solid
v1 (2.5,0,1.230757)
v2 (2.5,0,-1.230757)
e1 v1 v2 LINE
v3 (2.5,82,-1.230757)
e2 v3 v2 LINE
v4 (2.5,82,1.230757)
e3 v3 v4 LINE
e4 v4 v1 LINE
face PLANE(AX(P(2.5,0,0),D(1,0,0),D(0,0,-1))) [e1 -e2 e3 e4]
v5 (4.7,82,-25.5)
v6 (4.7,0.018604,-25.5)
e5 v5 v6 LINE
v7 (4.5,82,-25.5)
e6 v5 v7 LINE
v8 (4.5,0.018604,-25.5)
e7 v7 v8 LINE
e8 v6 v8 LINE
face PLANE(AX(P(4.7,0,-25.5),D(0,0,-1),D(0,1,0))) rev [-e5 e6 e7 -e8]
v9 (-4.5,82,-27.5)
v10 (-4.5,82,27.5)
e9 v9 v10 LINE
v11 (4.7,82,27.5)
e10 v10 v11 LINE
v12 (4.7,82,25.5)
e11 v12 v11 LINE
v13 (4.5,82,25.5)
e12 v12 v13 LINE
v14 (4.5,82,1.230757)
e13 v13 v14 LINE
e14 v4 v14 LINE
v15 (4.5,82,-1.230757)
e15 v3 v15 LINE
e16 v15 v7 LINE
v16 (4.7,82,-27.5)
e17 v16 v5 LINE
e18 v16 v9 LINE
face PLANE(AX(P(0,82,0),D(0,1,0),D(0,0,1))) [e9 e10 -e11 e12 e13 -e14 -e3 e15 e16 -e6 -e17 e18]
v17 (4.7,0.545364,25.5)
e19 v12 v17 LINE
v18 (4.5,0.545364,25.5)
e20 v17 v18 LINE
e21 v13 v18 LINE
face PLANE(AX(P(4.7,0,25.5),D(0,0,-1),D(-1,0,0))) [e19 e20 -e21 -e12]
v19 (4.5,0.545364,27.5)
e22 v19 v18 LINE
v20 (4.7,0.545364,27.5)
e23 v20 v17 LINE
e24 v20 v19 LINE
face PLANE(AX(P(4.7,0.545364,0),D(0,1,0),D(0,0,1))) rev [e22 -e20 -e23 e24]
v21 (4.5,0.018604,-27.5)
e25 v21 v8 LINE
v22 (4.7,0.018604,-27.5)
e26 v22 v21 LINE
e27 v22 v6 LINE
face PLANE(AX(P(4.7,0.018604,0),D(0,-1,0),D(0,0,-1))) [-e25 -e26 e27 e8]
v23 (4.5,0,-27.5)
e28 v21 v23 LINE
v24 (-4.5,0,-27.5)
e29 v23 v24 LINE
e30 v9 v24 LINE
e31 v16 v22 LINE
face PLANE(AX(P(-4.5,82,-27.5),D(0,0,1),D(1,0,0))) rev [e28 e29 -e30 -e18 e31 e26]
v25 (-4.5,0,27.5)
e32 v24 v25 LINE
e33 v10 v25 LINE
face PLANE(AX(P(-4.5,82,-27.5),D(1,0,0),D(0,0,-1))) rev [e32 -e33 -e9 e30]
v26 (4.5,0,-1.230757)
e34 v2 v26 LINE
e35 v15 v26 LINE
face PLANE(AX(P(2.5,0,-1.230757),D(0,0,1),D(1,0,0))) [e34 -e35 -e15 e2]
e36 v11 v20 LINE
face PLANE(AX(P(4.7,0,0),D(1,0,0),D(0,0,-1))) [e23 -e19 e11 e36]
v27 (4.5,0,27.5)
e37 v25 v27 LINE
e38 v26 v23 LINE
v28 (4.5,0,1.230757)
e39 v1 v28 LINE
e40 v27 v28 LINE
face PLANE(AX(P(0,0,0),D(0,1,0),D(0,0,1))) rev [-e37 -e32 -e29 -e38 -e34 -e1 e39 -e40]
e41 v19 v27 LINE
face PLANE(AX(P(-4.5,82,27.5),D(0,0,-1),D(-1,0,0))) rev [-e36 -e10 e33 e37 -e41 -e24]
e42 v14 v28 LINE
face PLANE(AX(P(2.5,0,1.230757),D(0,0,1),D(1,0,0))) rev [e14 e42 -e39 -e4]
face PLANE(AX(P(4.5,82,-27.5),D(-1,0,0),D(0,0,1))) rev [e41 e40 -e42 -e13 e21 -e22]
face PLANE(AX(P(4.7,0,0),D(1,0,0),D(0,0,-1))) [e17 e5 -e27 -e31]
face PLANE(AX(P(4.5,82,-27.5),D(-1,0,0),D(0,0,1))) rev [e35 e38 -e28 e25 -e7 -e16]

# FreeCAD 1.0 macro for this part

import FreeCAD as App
import Part
import Sketcher

V = App.Vector
Q = App.Units.Quantity


def add_polygon(sketch, points):
    """Adds a closed chain of lines whose ends are joined by coincident constraints."""
    first, n = sketch.GeometryCount, len(points)
    for a, b in zip(points, points[1:] + points[:1]):
        sketch.addGeometry(Part.LineSegment(App.Vector(*a, 0), App.Vector(*b, 0)), False)
    for i in range(n):
        sketch.addConstraint(Sketcher.Constraint("Coincident", first + i, 2, first + (i + 1) % n, 1))

doc = App.newDocument("Part")
body = doc.addObject("PartDesign::Body", "Body")

sketch1 = body.newObject("Sketcher::SketchObject", "Sketch")
sketch1.AttachmentSupport = (doc.getObject("XZ_Plane"), [""])
sketch1.MapMode = "FlatFace"
add_polygon(sketch1, [(-4, -28), (-4, 28), (4, 28), (4, -28)])
sketch1.addConstraint([
    Sketcher.Constraint("Vertical", 0),
    Sketcher.Constraint("Horizontal", 1),
    Sketcher.Constraint("Vertical", 2),
    Sketcher.Constraint("Horizontal", 3),
    Sketcher.Constraint("Symmetric", 0, 2, 2, 2, -1, 1),
    Sketcher.Constraint("DistanceX", 1, 1, 1, 2, Q("9 mm")),
    Sketcher.Constraint("DistanceY", 0, 1, 0, 2, Q("55 mm")),
])
pad1 = body.newObject("PartDesign::Pad", "Pad")
pad1.Profile = sketch1
pad1.Length = 82
pad1.Reversed = True

sketch2 = body.newObject("Sketcher::SketchObject", "Sketch001")
sketch2.AttachmentSupport = (doc.getObject("YZ_Plane"), [""])
sketch2.MapMode = "FlatFace"
sketch2.AttachmentOffset = App.Placement(V(0, 0, 4.5), App.Rotation())
add_polygon(sketch2, [(82, 1.2), (0, 1.2), (0, -1.2), (82, -1.2)])
sketch2.addConstraint([
    Sketcher.Constraint("Horizontal", 0),
    Sketcher.Constraint("Vertical", 1),
    Sketcher.Constraint("Horizontal", 2),
    Sketcher.Constraint("Vertical", 3),
    Sketcher.Constraint("Symmetric", 0, 2, 1, 2, -1, 1),
    Sketcher.Constraint("DistanceX", 0, 2, 0, 1, Q("82 mm")),
    Sketcher.Constraint("DistanceY", 1, 2, 1, 1, Q("2.461514 mm")),
])
pocket1 = body.newObject("PartDesign::Pocket", "Pocket")
pocket1.Profile = sketch2
pocket1.Length = 2

sketch3 = body.newObject("Sketcher::SketchObject", "Sketch002")
sketch3.AttachmentSupport = (doc.getObject("YZ_Plane"), [""])
sketch3.MapMode = "FlatFace"
sketch3.AttachmentOffset = App.Placement(V(0, 0, 4.5), App.Rotation())
add_polygon(sketch3, [(82, 27.5), (0.5, 27.5), (0.5, 25.5), (82, 25.5)])
add_polygon(sketch3, [(82, -25.5), (0, -25.5), (0, -27.5), (82, -27.5)])
sketch3.addConstraint([
    Sketcher.Constraint("Horizontal", 0),
    Sketcher.Constraint("Vertical", 1),
    Sketcher.Constraint("Horizontal", 2),
    Sketcher.Constraint("Vertical", 3),
    Sketcher.Constraint("Horizontal", 4),
    Sketcher.Constraint("Vertical", 5),
    Sketcher.Constraint("Horizontal", 6),
    Sketcher.Constraint("Vertical", 7),
    Sketcher.Constraint("Symmetric", 3, 2, 6, 2, -1),
    Sketcher.Constraint("Equal", 3, 5),
    Sketcher.Constraint("DistanceY", 1, 2, 1, 1, Q("2 mm")),
    Sketcher.Constraint("DistanceX", -1, 1, 2, 2, Q("82 mm")),
    Sketcher.Constraint("DistanceY", 4, 2, 1, 2, Q("51 mm")),
    Sketcher.Constraint("DistanceX", 0, 2, 0, 1, Q("81.454636 mm")),
    Sketcher.Constraint("DistanceX", 4, 2, 4, 1, Q("81.981396 mm")),
])
pad2 = body.newObject("PartDesign::Pad", "Pad001")
pad2.Profile = sketch3
pad2.Length = 0.2

doc.recompute()
